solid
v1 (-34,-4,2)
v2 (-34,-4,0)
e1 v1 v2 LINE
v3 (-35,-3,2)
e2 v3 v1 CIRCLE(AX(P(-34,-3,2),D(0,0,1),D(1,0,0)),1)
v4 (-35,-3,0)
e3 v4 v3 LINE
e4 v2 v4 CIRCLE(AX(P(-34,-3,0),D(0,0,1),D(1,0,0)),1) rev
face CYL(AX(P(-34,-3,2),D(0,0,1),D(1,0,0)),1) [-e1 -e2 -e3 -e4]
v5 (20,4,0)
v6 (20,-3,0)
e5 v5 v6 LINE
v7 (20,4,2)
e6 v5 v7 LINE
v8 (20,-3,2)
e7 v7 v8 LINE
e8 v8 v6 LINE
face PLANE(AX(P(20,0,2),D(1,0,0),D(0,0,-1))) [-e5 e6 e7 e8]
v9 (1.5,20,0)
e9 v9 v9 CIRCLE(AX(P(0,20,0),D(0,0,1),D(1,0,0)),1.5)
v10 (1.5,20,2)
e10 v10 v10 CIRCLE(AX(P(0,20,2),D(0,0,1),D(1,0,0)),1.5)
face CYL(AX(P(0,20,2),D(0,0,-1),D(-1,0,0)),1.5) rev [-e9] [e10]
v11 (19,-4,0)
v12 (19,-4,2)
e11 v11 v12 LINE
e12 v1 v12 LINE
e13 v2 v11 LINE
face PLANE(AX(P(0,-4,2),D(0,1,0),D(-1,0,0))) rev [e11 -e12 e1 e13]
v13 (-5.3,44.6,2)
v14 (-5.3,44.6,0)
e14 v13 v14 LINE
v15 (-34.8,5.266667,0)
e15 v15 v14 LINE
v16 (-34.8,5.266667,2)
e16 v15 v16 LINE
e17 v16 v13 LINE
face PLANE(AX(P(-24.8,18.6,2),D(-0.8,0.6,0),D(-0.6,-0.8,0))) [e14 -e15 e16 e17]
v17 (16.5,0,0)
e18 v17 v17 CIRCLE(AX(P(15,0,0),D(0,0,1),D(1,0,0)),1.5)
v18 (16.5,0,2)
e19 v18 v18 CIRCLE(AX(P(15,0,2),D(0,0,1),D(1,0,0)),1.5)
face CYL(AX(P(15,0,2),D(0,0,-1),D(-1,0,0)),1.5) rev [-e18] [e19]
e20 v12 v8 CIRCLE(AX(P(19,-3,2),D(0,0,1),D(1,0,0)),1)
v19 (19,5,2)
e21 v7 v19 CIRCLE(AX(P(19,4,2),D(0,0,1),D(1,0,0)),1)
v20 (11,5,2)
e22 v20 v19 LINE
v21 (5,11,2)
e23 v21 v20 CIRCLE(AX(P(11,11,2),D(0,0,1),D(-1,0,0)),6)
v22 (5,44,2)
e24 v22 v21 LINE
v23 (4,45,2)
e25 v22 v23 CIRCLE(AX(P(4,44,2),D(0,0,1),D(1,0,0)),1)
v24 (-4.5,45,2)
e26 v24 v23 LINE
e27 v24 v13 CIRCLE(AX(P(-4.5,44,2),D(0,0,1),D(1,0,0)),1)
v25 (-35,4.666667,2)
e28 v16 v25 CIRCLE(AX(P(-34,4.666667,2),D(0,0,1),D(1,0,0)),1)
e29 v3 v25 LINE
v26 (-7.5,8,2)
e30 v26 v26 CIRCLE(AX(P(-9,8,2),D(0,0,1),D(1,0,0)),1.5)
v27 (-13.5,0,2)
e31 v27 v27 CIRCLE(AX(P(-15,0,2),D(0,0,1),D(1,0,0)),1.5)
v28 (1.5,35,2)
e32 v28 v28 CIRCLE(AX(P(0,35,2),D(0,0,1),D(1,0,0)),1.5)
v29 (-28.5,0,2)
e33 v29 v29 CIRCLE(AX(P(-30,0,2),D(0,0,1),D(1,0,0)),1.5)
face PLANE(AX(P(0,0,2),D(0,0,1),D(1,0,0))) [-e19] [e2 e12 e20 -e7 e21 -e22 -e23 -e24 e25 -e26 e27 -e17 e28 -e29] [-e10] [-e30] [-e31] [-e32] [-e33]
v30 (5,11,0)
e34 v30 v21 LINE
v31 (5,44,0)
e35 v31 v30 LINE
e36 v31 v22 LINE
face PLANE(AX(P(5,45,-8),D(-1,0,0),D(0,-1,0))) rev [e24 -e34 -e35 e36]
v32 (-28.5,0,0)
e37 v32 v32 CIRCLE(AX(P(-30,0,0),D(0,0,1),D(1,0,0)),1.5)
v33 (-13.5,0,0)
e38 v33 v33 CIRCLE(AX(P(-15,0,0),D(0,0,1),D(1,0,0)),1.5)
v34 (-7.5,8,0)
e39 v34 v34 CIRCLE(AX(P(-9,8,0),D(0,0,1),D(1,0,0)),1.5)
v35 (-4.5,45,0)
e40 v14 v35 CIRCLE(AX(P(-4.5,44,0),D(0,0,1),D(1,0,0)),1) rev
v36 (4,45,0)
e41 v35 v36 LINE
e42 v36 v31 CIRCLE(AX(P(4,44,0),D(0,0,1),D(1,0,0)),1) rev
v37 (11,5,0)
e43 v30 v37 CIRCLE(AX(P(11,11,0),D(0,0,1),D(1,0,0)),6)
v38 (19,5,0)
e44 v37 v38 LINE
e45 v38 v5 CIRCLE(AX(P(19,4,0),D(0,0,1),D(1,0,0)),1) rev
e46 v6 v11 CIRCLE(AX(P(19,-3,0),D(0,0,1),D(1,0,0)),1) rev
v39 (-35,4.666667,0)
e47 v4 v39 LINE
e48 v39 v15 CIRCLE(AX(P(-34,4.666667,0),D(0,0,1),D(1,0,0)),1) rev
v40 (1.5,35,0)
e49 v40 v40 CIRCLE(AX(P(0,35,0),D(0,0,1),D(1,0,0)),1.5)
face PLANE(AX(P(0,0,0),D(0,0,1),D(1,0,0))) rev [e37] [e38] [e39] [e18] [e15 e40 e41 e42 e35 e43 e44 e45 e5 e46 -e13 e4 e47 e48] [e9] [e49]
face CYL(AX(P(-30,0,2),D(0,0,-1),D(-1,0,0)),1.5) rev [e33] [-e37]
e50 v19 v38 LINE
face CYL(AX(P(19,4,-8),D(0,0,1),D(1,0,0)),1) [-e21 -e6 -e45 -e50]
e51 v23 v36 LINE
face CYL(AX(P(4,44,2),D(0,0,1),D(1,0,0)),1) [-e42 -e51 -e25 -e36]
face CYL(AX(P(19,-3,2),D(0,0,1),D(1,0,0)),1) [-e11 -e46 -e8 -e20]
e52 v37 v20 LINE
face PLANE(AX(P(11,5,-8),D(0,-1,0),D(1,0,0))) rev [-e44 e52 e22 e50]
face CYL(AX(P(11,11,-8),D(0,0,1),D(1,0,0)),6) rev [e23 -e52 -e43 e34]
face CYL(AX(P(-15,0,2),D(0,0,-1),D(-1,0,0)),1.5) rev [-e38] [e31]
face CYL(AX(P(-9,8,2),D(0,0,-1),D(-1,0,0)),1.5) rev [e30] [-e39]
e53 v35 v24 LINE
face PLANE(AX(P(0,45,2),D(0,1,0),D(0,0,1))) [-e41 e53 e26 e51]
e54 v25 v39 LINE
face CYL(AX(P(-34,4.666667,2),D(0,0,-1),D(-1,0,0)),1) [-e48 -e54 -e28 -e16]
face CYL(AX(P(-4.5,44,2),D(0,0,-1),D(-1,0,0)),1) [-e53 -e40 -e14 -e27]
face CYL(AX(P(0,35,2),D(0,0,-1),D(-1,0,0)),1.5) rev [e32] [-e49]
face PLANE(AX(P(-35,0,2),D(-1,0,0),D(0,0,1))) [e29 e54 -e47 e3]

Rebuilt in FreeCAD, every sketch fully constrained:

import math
import FreeCAD as App
import Part
import Sketcher
Q = App.Units.Quantity


def edges_at(feature, points):
    """Names of the edges that pass closest to the given points."""
    edges = feature.Shape.Edges
    near = lambda p: min(range(len(edges)), key=lambda i: edges[i].distToShape(Part.Vertex(*p))[0])
    return sorted({f"Edge{near(p) + 1}" for p in points})


def add_polygon(sketch, points):
    """Adds a closed chain of lines whose ends are joined by coincident constraints."""
    first, n = sketch.GeometryCount, len(points)
    for a, b in zip(points, points[1:] + points[:1]):
        sketch.addGeometry(Part.LineSegment(App.Vector(*a, 0), App.Vector(*b, 0)), False)
    for i in range(n):
        sketch.addConstraint(Sketcher.Constraint("Coincident", first + i, 2, first + (i + 1) % n, 1))

doc = App.newDocument("Part")
params = doc.addObject("Spreadsheet::Sheet", "Params")
for row, (alias, value) in enumerate([
    ("sketch1_diameter", "3 mm"),
    ("sketch1_width", "55 mm"),
    ("sketch1_width2", "10 mm"),
    ("sketch1_height", "9 mm"),
    ("sketch1_length", "50 mm"),
    ("pad1_length", "2 mm"),
    ("sketch2_radius", "6 mm"),
    ("sketch2_width", "9 mm"),
    ("sketch2_height", "34 mm"),
    ("pocket1_length", "10 mm"),
    ("fillet_radius", "1 mm"),
], start=1):
    params.set(f"A{row}", alias)
    params.set(f"B{row}", "=" + value)
    params.setAlias(f"B{row}", alias)

body = doc.addObject("PartDesign::Body", "Body")

sketch1 = body.newObject("Sketcher::SketchObject", "Sketch")
sketch1.AttachmentSupport = (doc.getObject("XY_Plane"), [""])
sketch1.MapMode = "FlatFace"
add_polygon(sketch1, [(-5, 45), (-35, 5), (-35, -4), (20, -4), (20, 5), (5, 45)])
sketch1.addGeometry(Part.Circle(App.Vector(-30, 0, 0), App.Vector(0, 0, 1), 1.5), False)
sketch1.addGeometry(Part.Circle(App.Vector(-15, 0, 0), App.Vector(0, 0, 1), 1.5), False)
sketch1.addGeometry(Part.Circle(App.Vector(-9, 8, 0), App.Vector(0, 0, 1), 1.5), False)
sketch1.addGeometry(Part.Circle(App.Vector(15, 0, 0), App.Vector(0, 0, 1), 1.5), False)
sketch1.addGeometry(Part.Circle(App.Vector(0, 20, 0), App.Vector(0, 0, 1), 1.5), False)
sketch1.addGeometry(Part.Circle(App.Vector(0, 35, 0), App.Vector(0, 0, 1), 1.5), False)
sketch1.addConstraint(Sketcher.Constraint("Vertical", 1))
sketch1.addConstraint(Sketcher.Constraint("Horizontal", 2))
sketch1.addConstraint(Sketcher.Constraint("Vertical", 3))
sketch1.addConstraint(Sketcher.Constraint("Horizontal", 5))
sketch1.addConstraint(Sketcher.Constraint("Equal", 6, 7))
sketch1.addConstraint(Sketcher.Constraint("Equal", 7, 8))
sketch1.addConstraint(Sketcher.Constraint("Equal", 8, 9))
sketch1.addConstraint(Sketcher.Constraint("Equal", 9, 10))
sketch1.addConstraint(Sketcher.Constraint("Equal", 10, 11))
sketch1.addConstraint(Sketcher.Constraint("Symmetric", 7, 3, 9, 3, -1, 1))
sketch1.addConstraint(Sketcher.Constraint("PointOnObject", 6, 3, -1))
sketch1.addConstraint(Sketcher.Constraint("PointOnObject", 7, 3, -1))
sketch1.addConstraint(Sketcher.Constraint("PointOnObject", 10, 3, -2))
sketch1.addConstraint(Sketcher.Constraint("PointOnObject", 11, 3, -2))
sketch1.addConstraint(Sketcher.Constraint("Horizontal", 0, 2, 3, 2))
sketch1.addConstraint(Sketcher.Constraint("Diameter", 6, Q("3 mm")))
sketch1.addConstraint(Sketcher.Constraint("DistanceX", 2, 1, 2, 2, Q("55 mm")))
sketch1.addConstraint(Sketcher.Constraint("DistanceX", 5, 2, 5, 1, Q("10 mm")))
sketch1.addConstraint(Sketcher.Constraint("DistanceY", 1, 2, 1, 1, Q("9 mm")))
sketch1.addConstraint(Sketcher.Constraint("Distance", 0, Q("50 mm")))
sketch1.addConstraint(Sketcher.Constraint("DistanceX", 6, 3, -1, 1, Q("30 mm")))
sketch1.addConstraint(Sketcher.Constraint("DistanceX", 7, 3, -1, 1, Q("15 mm")))
sketch1.addConstraint(Sketcher.Constraint("DistanceX", 8, 3, -1, 1, Q("9 mm")))
sketch1.addConstraint(Sketcher.Constraint("DistanceY", -1, 1, 8, 3, Q("8 mm")))
sketch1.addConstraint(Sketcher.Constraint("DistanceY", -1, 1, 10, 3, Q("20 mm")))
sketch1.addConstraint(Sketcher.Constraint("DistanceY", -1, 1, 11, 3, Q("35 mm")))
sketch1.addConstraint(Sketcher.Constraint("DistanceX", 0, 2, -1, 1, Q("35 mm")))
sketch1.addConstraint(Sketcher.Constraint("DistanceY", -1, 1, 0, 2, Q("5 mm")))
sketch1.addConstraint(Sketcher.Constraint("DistanceX", -1, 1, 4, 2, Q("5 mm")))
sketch1.setExpression("Constraints[21]", "Params.sketch1_diameter")
sketch1.setExpression("Constraints[22]", "Params.sketch1_width")
sketch1.setExpression("Constraints[23]", "Params.sketch1_width2")
sketch1.setExpression("Constraints[24]", "Params.sketch1_height")
sketch1.setExpression("Constraints[25]", "Params.sketch1_length")
pad1 = body.newObject("PartDesign::Pad", "Pad")
pad1.Profile = sketch1
pad1.setExpression("Length", "Params.pad1_length")

sketch2 = body.newObject("Sketcher::SketchObject", "Sketch001")
sketch2.AttachmentSupport = (doc.getObject("XY_Plane"), [""])
sketch2.MapMode = "FlatFace"
sketch2.AttachmentOffset = App.Placement(App.Vector(0, 0, 2), App.Rotation())
sketch2.addGeometry(Part.LineSegment(App.Vector(5, 45, 0), App.Vector(5, 11, 0)), False)
sketch2.addGeometry(Part.ArcOfCircle(Part.Circle(App.Vector(11, 11, 0), App.Vector(0, 0, 1), 6), math.radians(180), math.radians(270)), False)
sketch2.addGeometry(Part.LineSegment(App.Vector(11, 5, 0), App.Vector(20, 5, 0)), False)
sketch2.addGeometry(Part.LineSegment(App.Vector(20, 5, 0), App.Vector(5, 45, 0)), False)
sketch2.addConstraint(Sketcher.Constraint("Tangent", 0, 2, 1, 1))
sketch2.addConstraint(Sketcher.Constraint("Tangent", 1, 2, 2, 1))
sketch2.addConstraint(Sketcher.Constraint("Coincident", 2, 2, 3, 1))
sketch2.addConstraint(Sketcher.Constraint("Coincident", 3, 2, 0, 1))
sketch2.addConstraint(Sketcher.Constraint("Vertical", 0))
sketch2.addConstraint(Sketcher.Constraint("Horizontal", 2))
sketch2.addConstraint(Sketcher.Constraint("Radius", 1, Q("6 mm")))
sketch2.addConstraint(Sketcher.Constraint("DistanceX", 2, 1, 2, 2, Q("9 mm")))
sketch2.addConstraint(Sketcher.Constraint("DistanceY", 0, 2, 0, 1, Q("34 mm")))
sketch2.addConstraint(Sketcher.Constraint("DistanceX", -1, 1, 1, 3, Q("11 mm")))
sketch2.addConstraint(Sketcher.Constraint("DistanceY", -1, 1, 1, 3, Q("11 mm")))
sketch2.setExpression("Constraints[6]", "Params.sketch2_radius")
sketch2.setExpression("Constraints[7]", "Params.sketch2_width")
sketch2.setExpression("Constraints[8]", "Params.sketch2_height")
pocket1 = body.newObject("PartDesign::Pocket", "Pocket")
pocket1.Profile = sketch2
pocket1.setExpression("Length", "Params.pocket1_length")
doc.recompute()

fillet = body.newObject("PartDesign::Fillet", "Fillet")
fillet.Base = (pocket1, edges_at(pocket1, [
    (20, -4, 1),
    (-35, -4, 1),
    (-35, 5, 1),
    (-5, 45, 1),
    (5, 45, 1),
    (20, 5, 1),
]))
fillet.setExpression("Radius", "Params.fillet_radius")

doc.recompute()
